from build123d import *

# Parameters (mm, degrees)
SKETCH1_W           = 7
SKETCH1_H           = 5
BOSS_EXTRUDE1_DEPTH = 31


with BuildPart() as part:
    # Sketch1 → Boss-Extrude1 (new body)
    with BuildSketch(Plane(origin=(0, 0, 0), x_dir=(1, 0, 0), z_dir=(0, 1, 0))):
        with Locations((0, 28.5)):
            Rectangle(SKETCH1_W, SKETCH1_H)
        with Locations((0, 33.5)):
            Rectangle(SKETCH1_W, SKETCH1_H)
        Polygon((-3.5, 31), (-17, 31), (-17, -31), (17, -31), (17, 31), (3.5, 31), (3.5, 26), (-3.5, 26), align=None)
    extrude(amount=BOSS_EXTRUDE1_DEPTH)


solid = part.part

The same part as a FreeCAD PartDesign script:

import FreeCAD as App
import Part
import Sketcher
from FreeCAD import Vector
Q = App.Units.Quantity

doc = App.newDocument("Part")
body = doc.addObject("PartDesign::Body", "Body")

# Sketch on XZ plane
sketch1 = body.newObject("Sketcher::SketchObject", "Sketch")
sketch1.AttachmentSupport = (doc.getObject("XZ_Plane"), [""])
sketch1.MapMode = "FlatFace"
sketch1.addGeometry(Part.LineSegment(Vector(3.5, -31, 0), Vector(3.5, -36, 0)), False)
sketch1.addGeometry(Part.LineSegment(Vector(3.5, -36, 0), Vector(-3.5, -36, 0)), False)
sketch1.addGeometry(Part.LineSegment(Vector(-3.5, -36, 0), Vector(-3.5, -31, 0)), False)
sketch1.addGeometry(Part.LineSegment(Vector(-3.5, -31, 0), Vector(-17, -31, 0)), False)
sketch1.addGeometry(Part.LineSegment(Vector(-17, -31, 0), Vector(-17, 31, 0)), False)
sketch1.addGeometry(Part.LineSegment(Vector(-17, 31, 0), Vector(17, 31, 0)), False)
sketch1.addGeometry(Part.LineSegment(Vector(17, 31, 0), Vector(17, -31, 0)), False)
sketch1.addGeometry(Part.LineSegment(Vector(17, -31, 0), Vector(3.5, -31, 0)), False)
sketch1.addConstraint(Sketcher.Constraint("Coincident", 0, 2, 1, 1))
sketch1.addConstraint(Sketcher.Constraint("Coincident", 1, 2, 2, 1))
sketch1.addConstraint(Sketcher.Constraint("Coincident", 2, 2, 3, 1))
sketch1.addConstraint(Sketcher.Constraint("Coincident", 3, 2, 4, 1))
sketch1.addConstraint(Sketcher.Constraint("Coincident", 4, 2, 5, 1))
sketch1.addConstraint(Sketcher.Constraint("Coincident", 5, 2, 6, 1))
sketch1.addConstraint(Sketcher.Constraint("Coincident", 6, 2, 7, 1))
sketch1.addConstraint(Sketcher.Constraint("Coincident", 7, 2, 0, 1))
sketch1.addConstraint(Sketcher.Constraint("Vertical", 0))
sketch1.addConstraint(Sketcher.Constraint("Horizontal", 1))
sketch1.addConstraint(Sketcher.Constraint("Vertical", 2))
sketch1.addConstraint(Sketcher.Constraint("Horizontal", 3))
sketch1.addConstraint(Sketcher.Constraint("Vertical", 4))
sketch1.addConstraint(Sketcher.Constraint("Horizontal", 5))
sketch1.addConstraint(Sketcher.Constraint("Vertical", 6))
sketch1.addConstraint(Sketcher.Constraint("Horizontal", 7))
sketch1.addConstraint(Sketcher.Constraint("Symmetric", 3, 2, 5, 2, -1, 1))
sketch1.addConstraint(Sketcher.Constraint("Symmetric", 2, 2, 7, 2, -2))
sketch1.addConstraint(Sketcher.Constraint("DistanceX", 1, 2, 1, 1, Q("7 mm")))
sketch1.addConstraint(Sketcher.Constraint("DistanceX", 5, 1, 5, 2, Q("34 mm")))
sketch1.addConstraint(Sketcher.Constraint("DistanceY", 0, 2, 0, 1, Q("5 mm")))
sketch1.addConstraint(Sketcher.Constraint("DistanceY", 4, 1, 4, 2, Q("62 mm")))
pad1 = body.newObject("PartDesign::Pad", "Pad")
pad1.Profile = sketch1
pad1.Length = 31
pad1.Reversed = True

doc.recompute()
